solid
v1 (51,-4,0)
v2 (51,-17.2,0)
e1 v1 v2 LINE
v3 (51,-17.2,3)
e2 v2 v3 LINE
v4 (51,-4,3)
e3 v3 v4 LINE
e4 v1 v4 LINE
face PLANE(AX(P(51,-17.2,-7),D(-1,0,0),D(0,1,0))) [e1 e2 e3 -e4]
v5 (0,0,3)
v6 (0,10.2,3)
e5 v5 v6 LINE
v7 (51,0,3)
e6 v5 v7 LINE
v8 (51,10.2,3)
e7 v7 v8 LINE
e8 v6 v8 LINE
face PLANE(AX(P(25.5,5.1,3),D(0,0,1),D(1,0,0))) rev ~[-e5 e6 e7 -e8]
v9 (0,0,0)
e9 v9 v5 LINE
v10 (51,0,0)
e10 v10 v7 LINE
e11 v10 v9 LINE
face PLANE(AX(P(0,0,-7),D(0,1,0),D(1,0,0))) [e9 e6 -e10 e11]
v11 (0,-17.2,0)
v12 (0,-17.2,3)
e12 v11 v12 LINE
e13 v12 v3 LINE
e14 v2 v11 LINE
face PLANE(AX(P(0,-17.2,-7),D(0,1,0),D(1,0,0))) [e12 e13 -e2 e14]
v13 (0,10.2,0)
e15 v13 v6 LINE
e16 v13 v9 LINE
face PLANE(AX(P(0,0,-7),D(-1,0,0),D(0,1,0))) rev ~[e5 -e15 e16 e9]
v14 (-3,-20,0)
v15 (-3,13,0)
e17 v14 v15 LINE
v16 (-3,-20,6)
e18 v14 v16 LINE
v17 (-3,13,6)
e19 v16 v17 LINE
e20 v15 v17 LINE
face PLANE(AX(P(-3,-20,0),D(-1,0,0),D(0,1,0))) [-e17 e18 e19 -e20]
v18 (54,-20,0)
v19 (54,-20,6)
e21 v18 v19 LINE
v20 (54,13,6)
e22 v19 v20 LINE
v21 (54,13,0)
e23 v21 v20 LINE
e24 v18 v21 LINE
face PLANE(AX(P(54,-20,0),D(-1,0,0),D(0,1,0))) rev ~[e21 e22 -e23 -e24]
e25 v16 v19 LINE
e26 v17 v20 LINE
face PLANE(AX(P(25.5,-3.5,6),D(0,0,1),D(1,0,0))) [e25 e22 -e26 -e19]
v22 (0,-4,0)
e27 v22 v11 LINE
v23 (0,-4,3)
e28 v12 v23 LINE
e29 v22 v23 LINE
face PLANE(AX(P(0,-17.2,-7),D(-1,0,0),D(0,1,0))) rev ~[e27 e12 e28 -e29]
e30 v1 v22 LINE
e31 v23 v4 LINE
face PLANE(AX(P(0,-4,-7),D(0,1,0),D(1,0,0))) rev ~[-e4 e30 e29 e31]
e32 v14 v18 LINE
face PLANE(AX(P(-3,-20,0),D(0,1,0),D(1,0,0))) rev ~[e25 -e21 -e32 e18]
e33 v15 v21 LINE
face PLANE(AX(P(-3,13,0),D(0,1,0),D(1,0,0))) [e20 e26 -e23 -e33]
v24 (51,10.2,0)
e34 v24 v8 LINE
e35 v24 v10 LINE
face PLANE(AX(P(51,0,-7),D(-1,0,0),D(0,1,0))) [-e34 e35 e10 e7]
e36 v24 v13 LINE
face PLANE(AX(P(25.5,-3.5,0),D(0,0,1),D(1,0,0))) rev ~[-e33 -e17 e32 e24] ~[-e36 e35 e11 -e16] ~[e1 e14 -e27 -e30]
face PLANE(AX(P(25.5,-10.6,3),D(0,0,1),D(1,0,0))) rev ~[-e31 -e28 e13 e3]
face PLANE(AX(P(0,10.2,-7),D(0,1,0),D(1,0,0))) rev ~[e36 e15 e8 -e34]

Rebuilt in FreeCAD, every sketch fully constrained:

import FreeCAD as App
import Part
import Sketcher
from FreeCAD import Vector


def add_polygon(sketch, points):
    """Adds a closed chain of lines whose ends are joined by coincident constraints."""
    first, n = sketch.GeometryCount, len(points)
    for a, b in zip(points, points[1:] + points[:1]):
        sketch.addGeometry(Part.LineSegment(App.Vector(*a, 0), App.Vector(*b, 0)), False)
    for i in range(n):
        sketch.addConstraint(Sketcher.Constraint("Coincident", first + i, 2, first + (i + 1) % n, 1))

doc = App.newDocument("Part")
body = doc.addObject("PartDesign::Body", "Body")

# Sketch on XY plane
sketch1 = body.newObject("Sketcher::SketchObject", "Sketch")
sketch1.AttachmentSupport = (doc.getObject("XY_Plane"), [""])
sketch1.MapMode = "FlatFace"
sketch1.AttachmentOffset = App.Placement(Vector(0, 0, -7), App.Rotation())
add_polygon(sketch1, [(0, 10.2), (0, 0), (51, 0), (51, 10.2)])  # lines 0-3
sketch1.addConstraint([
    Sketcher.Constraint("Vertical", 0),
    Sketcher.Constraint("Horizontal", 1),
    Sketcher.Constraint("Vertical", 2),
    Sketcher.Constraint("Horizontal", 3),
    Sketcher.Constraint("Coincident", 0, 2, -1, 1),
    Sketcher.Constraint("DistanceX", 1, 1, 1, 2, 51.0),
    Sketcher.Constraint("DistanceY", 0, 2, 0, 1, 10.2),
])
pad1 = body.newObject("PartDesign::Pad", "Pad")
pad1.Profile = sketch1
pad1.Length = 10
body2 = doc.addObject("PartDesign::Body", "Body001")
body2.AllowCompound = True

# Sketch on XY plane
sketch2 = body2.newObject("Sketcher::SketchObject", "Sketch001")
sketch2.AttachmentSupport = (doc.getObject("XY_Plane001"), [""])
sketch2.MapMode = "FlatFace"
sketch2.AttachmentOffset = App.Placement(Vector(0, 0, -7), App.Rotation())
add_polygon(sketch2, [(0, -4), (0, -17.2), (51, -17.2), (51, -4)])  # lines 0-3
sketch2.addConstraint([
    Sketcher.Constraint("Vertical", 0),
    Sketcher.Constraint("Horizontal", 1),
    Sketcher.Constraint("Vertical", 2),
    Sketcher.Constraint("Horizontal", 3),
    Sketcher.Constraint("PointOnObject", 0, 2, -2),
    Sketcher.Constraint("DistanceX", 1, 1, 1, 2, 51.0),
    Sketcher.Constraint("DistanceY", 0, 2, 0, 1, 13.2),
    Sketcher.Constraint("DistanceY", 2, 2, -1, 1, 4.0),
])
pad2 = body2.newObject("PartDesign::Pad", "Pad001")
pad2.Profile = sketch2
pad2.Length = 10
doc.recompute()

boolean = body2.newObject("PartDesign::Boolean", "Boolean")
boolean.Type = "Fuse"
boolean.addObjects([body])
body3 = doc.addObject("PartDesign::Body", "Body002")

# Sketch on XY plane
sketch3 = body3.newObject("Sketcher::SketchObject", "Sketch002")
sketch3.AttachmentSupport = (doc.getObject("XY_Plane002"), [""])
sketch3.MapMode = "FlatFace"
add_polygon(sketch3, [(-3, 13), (-3, -20), (54, -20), (54, 13)])  # lines 0-3
sketch3.addConstraint([
    Sketcher.Constraint("Vertical", 0),
    Sketcher.Constraint("Horizontal", 1),
    Sketcher.Constraint("Vertical", 2),
    Sketcher.Constraint("Horizontal", 3),
    Sketcher.Constraint("DistanceX", 1, 1, 1, 2, 57.0),
    Sketcher.Constraint("DistanceY", 0, 2, 0, 1, 33.0),
    Sketcher.Constraint("DistanceX", 0, 2, -1, 1, 3.0),
    Sketcher.Constraint("DistanceY", 0, 2, -1, 1, 20.0),
])
pad3 = body3.newObject("PartDesign::Pad", "Pad002")
pad3.Profile = sketch3
pad3.Length = 6
doc.recompute()

boolean2 = body3.newObject("PartDesign::Boolean", "Boolean001")
boolean2.Type = "Cut"
boolean2.addObjects([body2])

doc.recompute()
